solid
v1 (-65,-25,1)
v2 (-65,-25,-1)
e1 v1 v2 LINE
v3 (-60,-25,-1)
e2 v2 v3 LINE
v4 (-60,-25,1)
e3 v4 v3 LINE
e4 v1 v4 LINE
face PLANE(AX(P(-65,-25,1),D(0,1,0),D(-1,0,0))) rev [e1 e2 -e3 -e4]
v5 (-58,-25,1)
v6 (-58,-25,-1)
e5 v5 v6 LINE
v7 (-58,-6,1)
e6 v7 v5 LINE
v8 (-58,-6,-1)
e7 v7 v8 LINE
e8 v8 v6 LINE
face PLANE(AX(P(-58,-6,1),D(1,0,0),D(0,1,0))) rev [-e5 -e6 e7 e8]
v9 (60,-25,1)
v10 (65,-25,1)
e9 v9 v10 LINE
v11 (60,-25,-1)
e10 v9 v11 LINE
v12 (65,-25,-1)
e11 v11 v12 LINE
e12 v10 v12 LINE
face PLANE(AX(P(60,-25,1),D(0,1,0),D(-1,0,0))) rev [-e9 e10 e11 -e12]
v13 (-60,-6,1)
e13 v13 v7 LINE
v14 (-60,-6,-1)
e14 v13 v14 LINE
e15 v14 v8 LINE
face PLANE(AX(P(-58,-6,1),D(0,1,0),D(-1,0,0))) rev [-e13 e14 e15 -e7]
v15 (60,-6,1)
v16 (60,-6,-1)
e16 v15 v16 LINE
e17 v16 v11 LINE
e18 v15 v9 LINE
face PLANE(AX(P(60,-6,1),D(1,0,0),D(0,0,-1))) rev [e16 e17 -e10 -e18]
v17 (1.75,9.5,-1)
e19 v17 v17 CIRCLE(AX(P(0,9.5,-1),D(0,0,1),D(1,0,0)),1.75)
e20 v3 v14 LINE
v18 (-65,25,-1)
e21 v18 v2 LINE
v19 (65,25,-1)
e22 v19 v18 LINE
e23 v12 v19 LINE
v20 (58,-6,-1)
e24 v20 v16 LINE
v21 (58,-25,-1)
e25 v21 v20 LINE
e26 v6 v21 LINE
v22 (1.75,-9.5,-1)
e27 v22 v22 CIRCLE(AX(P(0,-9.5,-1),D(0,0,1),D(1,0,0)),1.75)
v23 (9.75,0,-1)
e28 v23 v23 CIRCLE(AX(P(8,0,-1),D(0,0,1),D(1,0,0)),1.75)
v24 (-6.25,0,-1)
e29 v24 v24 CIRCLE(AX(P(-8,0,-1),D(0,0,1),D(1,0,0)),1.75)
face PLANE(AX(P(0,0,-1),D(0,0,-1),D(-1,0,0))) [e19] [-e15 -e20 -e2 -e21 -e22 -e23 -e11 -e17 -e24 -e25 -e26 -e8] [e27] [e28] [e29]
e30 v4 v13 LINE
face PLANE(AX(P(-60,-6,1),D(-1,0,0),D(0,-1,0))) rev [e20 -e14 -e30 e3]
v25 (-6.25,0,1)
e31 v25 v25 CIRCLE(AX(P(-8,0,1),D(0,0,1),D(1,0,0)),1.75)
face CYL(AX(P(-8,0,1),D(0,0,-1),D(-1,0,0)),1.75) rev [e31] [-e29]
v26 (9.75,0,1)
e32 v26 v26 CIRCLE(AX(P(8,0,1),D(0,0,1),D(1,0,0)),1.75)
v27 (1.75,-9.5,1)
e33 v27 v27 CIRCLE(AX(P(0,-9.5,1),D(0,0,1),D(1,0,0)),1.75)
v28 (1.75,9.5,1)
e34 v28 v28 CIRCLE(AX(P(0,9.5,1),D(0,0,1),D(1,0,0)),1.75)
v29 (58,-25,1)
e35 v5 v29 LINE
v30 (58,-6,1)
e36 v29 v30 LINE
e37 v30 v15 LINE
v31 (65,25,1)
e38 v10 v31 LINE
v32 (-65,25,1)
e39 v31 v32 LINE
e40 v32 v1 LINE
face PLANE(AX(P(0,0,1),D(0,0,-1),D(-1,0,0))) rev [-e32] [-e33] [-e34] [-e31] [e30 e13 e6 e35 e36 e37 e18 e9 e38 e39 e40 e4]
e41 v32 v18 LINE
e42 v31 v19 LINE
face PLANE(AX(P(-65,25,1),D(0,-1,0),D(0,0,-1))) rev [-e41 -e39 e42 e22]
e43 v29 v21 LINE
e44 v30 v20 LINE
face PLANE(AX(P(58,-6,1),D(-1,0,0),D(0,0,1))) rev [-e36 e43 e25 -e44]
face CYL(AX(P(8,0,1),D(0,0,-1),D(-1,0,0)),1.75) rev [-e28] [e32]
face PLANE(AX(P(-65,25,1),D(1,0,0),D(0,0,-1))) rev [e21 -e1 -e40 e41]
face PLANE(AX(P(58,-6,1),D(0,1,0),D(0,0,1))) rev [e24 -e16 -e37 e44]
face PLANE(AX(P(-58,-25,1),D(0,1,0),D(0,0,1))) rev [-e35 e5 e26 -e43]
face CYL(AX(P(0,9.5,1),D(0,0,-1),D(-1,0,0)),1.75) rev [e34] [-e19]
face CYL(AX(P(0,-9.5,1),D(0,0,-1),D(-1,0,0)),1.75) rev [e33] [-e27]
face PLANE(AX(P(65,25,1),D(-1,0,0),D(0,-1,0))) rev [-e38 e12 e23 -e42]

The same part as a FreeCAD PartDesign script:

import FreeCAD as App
import Part
import Sketcher
Q = App.Units.Quantity


def add_polygon(sketch, points):
    """Adds a closed chain of lines whose ends are joined by coincident constraints."""
    first, n = sketch.GeometryCount, len(points)
    for a, b in zip(points, points[1:] + points[:1]):
        sketch.addGeometry(Part.LineSegment(App.Vector(*a, 0), App.Vector(*b, 0)), False)
    for i in range(n):
        sketch.addConstraint(Sketcher.Constraint("Coincident", first + i, 2, first + (i + 1) % n, 1))

doc = App.newDocument("Part")
body = doc.addObject("PartDesign::Body", "Body")

sketch1 = body.newObject("Sketcher::SketchObject", "Sketch")
sketch1.AttachmentSupport = (doc.getObject("XY_Plane"), [""])
sketch1.MapMode = "FlatFace"
add_polygon(sketch1, [(65, 25), (-65, 25), (-65, -25), (-60, -25), (-60, -6), (-58, -6), (-58, -25), (58, -25), (58, -6), (60, -6), (60, -25), (65, -25)])
sketch1.addGeometry(Part.Circle(App.Vector(0, -9.5, 0), App.Vector(0, 0, 1), 1.75), False)
sketch1.addGeometry(Part.Circle(App.Vector(8, 0, 0), App.Vector(0, 0, 1), 1.75), False)
sketch1.addGeometry(Part.Circle(App.Vector(-8, 0, 0), App.Vector(0, 0, 1), 1.75), False)
sketch1.addGeometry(Part.Circle(App.Vector(0, 9.5, 0), App.Vector(0, 0, 1), 1.75), False)
sketch1.addConstraint([
    Sketcher.Constraint("Horizontal", 0),
    Sketcher.Constraint("Vertical", 1),
    Sketcher.Constraint("Horizontal", 2),
    Sketcher.Constraint("Vertical", 3),
    Sketcher.Constraint("Horizontal", 4),
    Sketcher.Constraint("Vertical", 5),
    Sketcher.Constraint("Horizontal", 6),
    Sketcher.Constraint("Vertical", 7),
    Sketcher.Constraint("Horizontal", 8),
    Sketcher.Constraint("Vertical", 9),
    Sketcher.Constraint("Horizontal", 10),
    Sketcher.Constraint("Vertical", 11),
    Sketcher.Constraint("Equal", 12, 13),
    Sketcher.Constraint("Equal", 13, 14),
    Sketcher.Constraint("Equal", 14, 15),
    Sketcher.Constraint("Symmetric", 13, 3, 14, 3, -1, 1),
    Sketcher.Constraint("Symmetric", 12, 3, 15, 3, -1, 1),
    Sketcher.Constraint("Symmetric", 0, 2, 10, 2, -1, 1),
    Sketcher.Constraint("Symmetric", 4, 2, 7, 2, -2),
    Sketcher.Constraint("Symmetric", 2, 2, 9, 2, -2),
    Sketcher.Constraint("PointOnObject", 12, 3, -2),
    Sketcher.Constraint("PointOnObject", 13, 3, -1),
    Sketcher.Constraint("Horizontal", 2, 2, 5, 2),
    Sketcher.Constraint("Diameter", 12, Q("3.5 mm")),
    Sketcher.Constraint("DistanceX", 0, 2, 0, 1, Q("130 mm")),
    Sketcher.Constraint("DistanceX", 2, 1, 2, 2, Q("5 mm")),
    Sketcher.Constraint("DistanceX", 4, 1, 4, 2, Q("2 mm")),
    Sketcher.Constraint("DistanceY", 1, 2, 1, 1, Q("50 mm")),
    Sketcher.Constraint("DistanceY", 3, 1, 3, 2, Q("19 mm")),
    Sketcher.Constraint("DistanceX", -1, 1, 13, 3, Q("8 mm")),
    Sketcher.Constraint("DistanceY", 12, 3, 15, 3, Q("19 mm")),
])
pad1 = body.newObject("PartDesign::Pad", "Pad")
pad1.Profile = sketch1
pad1.Length = 2
pad1.Midplane = True

doc.recompute()
